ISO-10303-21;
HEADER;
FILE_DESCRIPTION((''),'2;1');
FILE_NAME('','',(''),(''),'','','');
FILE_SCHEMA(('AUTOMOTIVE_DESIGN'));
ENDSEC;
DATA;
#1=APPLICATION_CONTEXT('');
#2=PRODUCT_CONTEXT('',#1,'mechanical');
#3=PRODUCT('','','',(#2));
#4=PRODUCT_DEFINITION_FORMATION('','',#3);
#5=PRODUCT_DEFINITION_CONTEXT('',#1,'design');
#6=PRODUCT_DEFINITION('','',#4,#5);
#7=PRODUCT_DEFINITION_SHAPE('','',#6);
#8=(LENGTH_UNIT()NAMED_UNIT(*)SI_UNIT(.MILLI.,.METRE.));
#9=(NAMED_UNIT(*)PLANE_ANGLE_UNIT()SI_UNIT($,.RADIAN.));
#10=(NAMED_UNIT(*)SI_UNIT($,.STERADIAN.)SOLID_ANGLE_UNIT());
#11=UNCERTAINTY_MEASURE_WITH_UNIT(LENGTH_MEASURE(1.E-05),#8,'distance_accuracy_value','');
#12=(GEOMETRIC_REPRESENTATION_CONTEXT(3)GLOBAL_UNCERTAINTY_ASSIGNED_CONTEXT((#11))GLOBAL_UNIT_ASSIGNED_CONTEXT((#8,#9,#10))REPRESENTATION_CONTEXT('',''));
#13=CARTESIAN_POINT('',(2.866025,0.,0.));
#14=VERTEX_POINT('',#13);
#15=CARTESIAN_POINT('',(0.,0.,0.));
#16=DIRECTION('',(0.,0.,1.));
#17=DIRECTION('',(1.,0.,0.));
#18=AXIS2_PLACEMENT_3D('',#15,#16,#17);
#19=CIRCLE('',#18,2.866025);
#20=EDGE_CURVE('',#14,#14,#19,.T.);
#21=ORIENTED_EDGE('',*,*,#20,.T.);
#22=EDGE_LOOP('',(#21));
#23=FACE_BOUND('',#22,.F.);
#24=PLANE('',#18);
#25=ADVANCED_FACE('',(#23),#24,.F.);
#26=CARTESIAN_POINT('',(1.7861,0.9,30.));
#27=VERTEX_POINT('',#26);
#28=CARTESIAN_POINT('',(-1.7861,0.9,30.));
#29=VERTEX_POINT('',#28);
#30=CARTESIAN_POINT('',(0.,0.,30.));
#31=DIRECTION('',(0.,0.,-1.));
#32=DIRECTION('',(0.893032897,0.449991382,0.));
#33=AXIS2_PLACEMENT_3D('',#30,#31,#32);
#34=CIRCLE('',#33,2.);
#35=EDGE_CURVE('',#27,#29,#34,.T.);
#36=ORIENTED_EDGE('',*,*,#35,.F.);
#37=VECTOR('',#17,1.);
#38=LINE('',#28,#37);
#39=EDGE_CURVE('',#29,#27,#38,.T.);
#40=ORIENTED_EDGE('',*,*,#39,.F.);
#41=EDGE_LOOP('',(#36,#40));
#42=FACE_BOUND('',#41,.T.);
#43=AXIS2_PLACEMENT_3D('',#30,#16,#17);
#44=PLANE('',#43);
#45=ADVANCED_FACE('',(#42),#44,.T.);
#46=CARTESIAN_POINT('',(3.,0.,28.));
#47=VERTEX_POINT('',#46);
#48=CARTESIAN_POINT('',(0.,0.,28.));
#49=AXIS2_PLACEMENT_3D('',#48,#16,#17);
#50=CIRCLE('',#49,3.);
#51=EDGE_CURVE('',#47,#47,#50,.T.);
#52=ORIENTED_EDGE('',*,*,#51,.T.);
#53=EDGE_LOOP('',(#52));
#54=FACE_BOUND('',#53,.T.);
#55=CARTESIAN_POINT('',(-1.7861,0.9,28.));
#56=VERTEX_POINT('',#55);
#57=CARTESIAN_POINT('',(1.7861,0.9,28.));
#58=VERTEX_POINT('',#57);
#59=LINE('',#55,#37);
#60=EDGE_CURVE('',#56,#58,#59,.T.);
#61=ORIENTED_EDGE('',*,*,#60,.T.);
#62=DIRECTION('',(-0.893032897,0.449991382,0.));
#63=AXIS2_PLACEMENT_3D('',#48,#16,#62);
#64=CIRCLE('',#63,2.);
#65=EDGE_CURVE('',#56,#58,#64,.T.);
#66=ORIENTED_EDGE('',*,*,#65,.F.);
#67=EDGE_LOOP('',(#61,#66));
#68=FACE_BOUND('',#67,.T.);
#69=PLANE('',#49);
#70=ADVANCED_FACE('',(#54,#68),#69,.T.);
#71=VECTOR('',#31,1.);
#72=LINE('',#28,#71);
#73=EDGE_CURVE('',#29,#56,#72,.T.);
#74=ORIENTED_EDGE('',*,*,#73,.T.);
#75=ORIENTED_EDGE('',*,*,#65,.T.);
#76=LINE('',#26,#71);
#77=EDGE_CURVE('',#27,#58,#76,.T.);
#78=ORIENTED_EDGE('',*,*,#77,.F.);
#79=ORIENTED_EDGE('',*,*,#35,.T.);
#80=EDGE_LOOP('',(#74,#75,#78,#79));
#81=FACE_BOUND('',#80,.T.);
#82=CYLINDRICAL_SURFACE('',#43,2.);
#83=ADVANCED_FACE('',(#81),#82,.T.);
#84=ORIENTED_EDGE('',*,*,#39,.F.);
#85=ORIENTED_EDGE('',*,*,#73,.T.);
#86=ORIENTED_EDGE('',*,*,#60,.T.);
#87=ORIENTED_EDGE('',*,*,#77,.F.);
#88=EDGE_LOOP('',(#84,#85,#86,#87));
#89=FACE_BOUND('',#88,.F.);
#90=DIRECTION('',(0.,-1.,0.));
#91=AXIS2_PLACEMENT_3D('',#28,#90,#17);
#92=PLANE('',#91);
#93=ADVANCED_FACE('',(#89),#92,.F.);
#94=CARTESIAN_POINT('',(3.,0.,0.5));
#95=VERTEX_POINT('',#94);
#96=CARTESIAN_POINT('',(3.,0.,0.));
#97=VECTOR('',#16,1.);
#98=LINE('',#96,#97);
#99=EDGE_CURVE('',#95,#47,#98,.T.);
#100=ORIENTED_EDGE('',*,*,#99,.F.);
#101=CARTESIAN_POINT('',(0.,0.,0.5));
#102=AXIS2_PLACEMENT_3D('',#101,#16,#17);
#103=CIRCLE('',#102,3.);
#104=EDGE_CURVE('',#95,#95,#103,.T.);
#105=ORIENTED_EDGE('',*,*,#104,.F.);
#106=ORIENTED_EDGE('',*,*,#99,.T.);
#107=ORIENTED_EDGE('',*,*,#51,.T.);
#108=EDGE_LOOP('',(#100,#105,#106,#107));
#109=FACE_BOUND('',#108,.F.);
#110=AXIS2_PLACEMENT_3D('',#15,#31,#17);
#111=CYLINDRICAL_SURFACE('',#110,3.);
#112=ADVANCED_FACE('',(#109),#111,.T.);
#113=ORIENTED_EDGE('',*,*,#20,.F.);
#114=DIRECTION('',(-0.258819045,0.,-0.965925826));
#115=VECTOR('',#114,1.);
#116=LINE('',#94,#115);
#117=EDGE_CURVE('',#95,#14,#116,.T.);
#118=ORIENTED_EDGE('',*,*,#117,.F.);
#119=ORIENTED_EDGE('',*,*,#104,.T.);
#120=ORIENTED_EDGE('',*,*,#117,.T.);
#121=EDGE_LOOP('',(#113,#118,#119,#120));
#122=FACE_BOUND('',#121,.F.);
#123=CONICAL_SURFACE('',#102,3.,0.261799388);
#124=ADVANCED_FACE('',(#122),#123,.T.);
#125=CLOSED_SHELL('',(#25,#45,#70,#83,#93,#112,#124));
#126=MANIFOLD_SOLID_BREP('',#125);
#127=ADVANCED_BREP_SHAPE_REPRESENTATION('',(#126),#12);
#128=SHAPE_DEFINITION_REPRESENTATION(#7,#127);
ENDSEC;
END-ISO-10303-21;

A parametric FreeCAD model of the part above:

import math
import FreeCAD as App
import Part
import Sketcher
from FreeCAD import Vector
Q = App.Units.Quantity


def edges_at(feature, points):
    """Names of the edges that pass closest to the given points."""
    edges = feature.Shape.Edges
    near = lambda p: min(range(len(edges)), key=lambda i: edges[i].distToShape(Part.Vertex(*p))[0])
    return sorted({f"Edge{near(p) + 1}" for p in points})

doc = App.newDocument("Part")
body = doc.addObject("PartDesign::Body", "Body")

# Sketch on XY plane
sketch1 = body.newObject("Sketcher::SketchObject", "Sketch")
sketch1.AttachmentSupport = (doc.getObject("XY_Plane"), [""])
sketch1.MapMode = "FlatFace"
sketch1.addGeometry(Part.Circle(Vector(0, 0, 0), Vector(0, 0, 1), 3), False)
sketch1.addConstraint(Sketcher.Constraint("Coincident", 0, 3, -1, 1))
sketch1.addConstraint(Sketcher.Constraint("Diameter", 0, Q("6 mm")))
pad1 = body.newObject("PartDesign::Pad", "Pad")
pad1.Profile = sketch1
pad1.Length = 30
doc.recompute()

chamfer = body.newObject("PartDesign::Chamfer", "Chamfer")
chamfer.Base = (pad1, edges_at(pad1, [(-3, 0, 0), (-3, 0, 30)]))
chamfer.ChamferType = "Distance and Angle"
chamfer.Size = 0.5
chamfer.Angle = 15

# Sketch on XY plane
sketch2 = body.newObject("Sketcher::SketchObject", "Sketch001")
sketch2.AttachmentSupport = (doc.getObject("XY_Plane"), [""])
sketch2.MapMode = "FlatFace"
sketch2.AttachmentOffset = App.Placement(Vector(0, 0, 30), App.Rotation())
sketch2.addGeometry(Part.Circle(Vector(0, 0, 0), Vector(0, 0, 1), 3), False)
sketch2.addGeometry(Part.ArcOfCircle(Part.Circle(Vector(0, 0, 0), Vector(0, 0, 1), 2), math.radians(153), math.radians(387)), False)
sketch2.addGeometry(Part.LineSegment(Vector(1.8, 0.9, 0), Vector(-1.8, 0.9, 0)), False)
sketch2.addConstraint(Sketcher.Constraint("Coincident", 1, 1, 2, 2))
sketch2.addConstraint(Sketcher.Constraint("Coincident", 2, 1, 1, 2))
sketch2.addConstraint(Sketcher.Constraint("Horizontal", 2))
sketch2.addConstraint(Sketcher.Constraint("Coincident", 0, 3, -1, 1))
sketch2.addConstraint(Sketcher.Constraint("Coincident", 1, 3, -1, 1))
sketch2.addConstraint(Sketcher.Constraint("Radius", 1, Q("2 mm")))
sketch2.addConstraint(Sketcher.Constraint("Diameter", 0, Q("6 mm")))
sketch2.addConstraint(Sketcher.Constraint("DistanceY", -1, 1, 1, 1, Q("0.9 mm")))
pocket1 = body.newObject("PartDesign::Pocket", "Pocket")
pocket1.Profile = sketch2
pocket1.Length = 2

doc.recompute()
